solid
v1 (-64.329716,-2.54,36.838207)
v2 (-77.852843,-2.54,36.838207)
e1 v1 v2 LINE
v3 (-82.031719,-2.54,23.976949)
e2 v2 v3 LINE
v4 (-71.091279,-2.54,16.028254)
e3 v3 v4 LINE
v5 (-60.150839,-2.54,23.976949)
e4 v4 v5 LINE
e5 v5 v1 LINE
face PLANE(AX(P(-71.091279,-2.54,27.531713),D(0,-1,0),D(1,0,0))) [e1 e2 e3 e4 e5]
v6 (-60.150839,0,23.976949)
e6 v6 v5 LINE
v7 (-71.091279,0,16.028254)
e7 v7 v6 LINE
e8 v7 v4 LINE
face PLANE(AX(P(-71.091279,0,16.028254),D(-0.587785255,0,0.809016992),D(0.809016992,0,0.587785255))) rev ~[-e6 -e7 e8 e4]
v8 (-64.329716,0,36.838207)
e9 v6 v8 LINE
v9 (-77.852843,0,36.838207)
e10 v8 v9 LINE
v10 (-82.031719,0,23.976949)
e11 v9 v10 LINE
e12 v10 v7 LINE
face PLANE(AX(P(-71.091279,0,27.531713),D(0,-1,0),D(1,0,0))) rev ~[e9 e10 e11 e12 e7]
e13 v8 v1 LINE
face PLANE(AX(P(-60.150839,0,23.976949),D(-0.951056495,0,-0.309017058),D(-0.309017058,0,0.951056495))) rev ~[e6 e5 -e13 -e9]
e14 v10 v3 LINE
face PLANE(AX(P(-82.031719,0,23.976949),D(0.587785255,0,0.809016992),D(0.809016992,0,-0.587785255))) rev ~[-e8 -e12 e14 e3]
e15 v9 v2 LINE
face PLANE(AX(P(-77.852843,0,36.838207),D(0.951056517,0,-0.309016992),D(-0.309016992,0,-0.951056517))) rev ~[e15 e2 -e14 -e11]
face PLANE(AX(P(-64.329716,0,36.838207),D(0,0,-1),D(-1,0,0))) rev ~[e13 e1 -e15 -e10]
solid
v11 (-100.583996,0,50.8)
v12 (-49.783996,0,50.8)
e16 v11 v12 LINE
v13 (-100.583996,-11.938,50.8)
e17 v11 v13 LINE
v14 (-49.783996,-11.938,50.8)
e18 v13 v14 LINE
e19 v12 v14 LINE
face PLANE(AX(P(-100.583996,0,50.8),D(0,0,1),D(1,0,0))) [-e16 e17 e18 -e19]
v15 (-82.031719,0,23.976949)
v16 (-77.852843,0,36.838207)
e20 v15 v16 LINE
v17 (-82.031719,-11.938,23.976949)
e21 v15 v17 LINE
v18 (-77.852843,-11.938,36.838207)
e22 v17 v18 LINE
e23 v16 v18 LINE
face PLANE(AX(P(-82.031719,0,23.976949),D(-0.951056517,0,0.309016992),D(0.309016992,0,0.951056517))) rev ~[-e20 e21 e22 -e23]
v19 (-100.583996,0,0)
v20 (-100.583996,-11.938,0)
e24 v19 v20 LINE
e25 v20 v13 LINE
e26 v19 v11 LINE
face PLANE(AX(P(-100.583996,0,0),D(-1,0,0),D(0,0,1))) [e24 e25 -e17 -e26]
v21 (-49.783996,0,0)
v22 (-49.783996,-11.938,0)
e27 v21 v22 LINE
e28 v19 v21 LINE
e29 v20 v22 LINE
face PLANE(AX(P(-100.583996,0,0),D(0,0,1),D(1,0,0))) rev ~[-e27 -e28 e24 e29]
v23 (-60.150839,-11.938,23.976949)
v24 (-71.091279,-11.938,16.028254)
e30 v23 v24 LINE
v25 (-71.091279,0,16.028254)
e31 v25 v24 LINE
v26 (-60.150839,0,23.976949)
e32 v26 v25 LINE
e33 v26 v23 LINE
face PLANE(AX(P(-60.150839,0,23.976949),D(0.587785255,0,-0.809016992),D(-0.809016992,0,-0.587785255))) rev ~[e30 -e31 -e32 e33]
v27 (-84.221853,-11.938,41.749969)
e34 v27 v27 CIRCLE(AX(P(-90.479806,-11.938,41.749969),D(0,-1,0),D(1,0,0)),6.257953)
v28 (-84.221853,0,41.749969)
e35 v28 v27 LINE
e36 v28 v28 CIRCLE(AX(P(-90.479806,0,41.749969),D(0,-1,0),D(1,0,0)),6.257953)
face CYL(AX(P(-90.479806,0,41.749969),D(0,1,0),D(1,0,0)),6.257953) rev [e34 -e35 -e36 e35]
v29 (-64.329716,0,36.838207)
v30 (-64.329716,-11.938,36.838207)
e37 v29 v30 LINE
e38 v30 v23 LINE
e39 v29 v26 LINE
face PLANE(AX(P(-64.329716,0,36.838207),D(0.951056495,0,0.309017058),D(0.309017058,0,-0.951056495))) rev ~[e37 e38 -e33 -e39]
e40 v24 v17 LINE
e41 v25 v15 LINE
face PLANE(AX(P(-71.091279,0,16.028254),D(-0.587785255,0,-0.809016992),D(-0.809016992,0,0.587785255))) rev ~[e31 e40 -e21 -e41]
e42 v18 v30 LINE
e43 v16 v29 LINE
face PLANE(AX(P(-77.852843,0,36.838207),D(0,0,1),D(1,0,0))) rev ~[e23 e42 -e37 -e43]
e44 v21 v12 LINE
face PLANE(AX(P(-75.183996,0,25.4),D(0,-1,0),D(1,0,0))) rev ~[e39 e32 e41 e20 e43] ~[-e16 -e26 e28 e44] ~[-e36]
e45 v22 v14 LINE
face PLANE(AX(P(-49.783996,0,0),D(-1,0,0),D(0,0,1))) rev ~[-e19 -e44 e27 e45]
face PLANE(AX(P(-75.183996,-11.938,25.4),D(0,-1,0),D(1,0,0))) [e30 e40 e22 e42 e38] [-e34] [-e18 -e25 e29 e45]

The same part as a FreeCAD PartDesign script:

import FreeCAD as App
import Part
import Sketcher
Q = App.Units.Quantity

doc = App.newDocument("Part")
body = doc.addObject("PartDesign::Body", "Body")

sketch1 = doc.addObject("Sketcher::SketchObject", "Sketch")
body.addObject(sketch1)
sketch1.AttachmentSupport = (doc.XZ_Plane, [""])
sketch1.MapMode = "FlatFace"
sketch1.addGeometry([
    Part.LineSegment(App.Vector(-64, 37, 0), App.Vector(-78, 37, 0)),
    Part.LineSegment(App.Vector(-78, 37, 0), App.Vector(-82, 24, 0)),
    Part.LineSegment(App.Vector(-82, 24, 0), App.Vector(-71, 16, 0)),
    Part.LineSegment(App.Vector(-71, 16, 0), App.Vector(-60, 24, 0)),
    Part.LineSegment(App.Vector(-60, 24, 0), App.Vector(-64, 37, 0)),
], False)
sketch1.addConstraint([
    Sketcher.Constraint("Coincident", 0, 2, 1, 1),
    Sketcher.Constraint("Coincident", 1, 2, 2, 1),
    Sketcher.Constraint("Coincident", 2, 2, 3, 1),
    Sketcher.Constraint("Coincident", 3, 2, 4, 1),
    Sketcher.Constraint("Coincident", 4, 2, 0, 1),
    Sketcher.Constraint("Horizontal", 0),
    Sketcher.Constraint("Horizontal", 1, 2, 3, 2),
    Sketcher.Constraint("Equal", 1, 2),
    Sketcher.Constraint("Equal", 2, 3),
    Sketcher.Constraint("Equal", 3, 4),
    Sketcher.Constraint("Angle", 1, Q("-108 deg")),
    Sketcher.Constraint("Angle", 2, Q("-36 deg")),
    Sketcher.Constraint("DistanceX", 0, 2, 0, 1, 13.523127),
    Sketcher.Constraint("DistanceX", 1, 2, -1, 1, 82.031719),
    Sketcher.Constraint("DistanceY", -1, 1, 1, 2, 23.976949),
])
pad1 = doc.addObject("PartDesign::Pad", "Pad")
body.addObject(pad1)
pad1.Profile = sketch1
pad1.Length = Q("0.1 in")
body2 = doc.addObject("PartDesign::Body", "Body001")

sketch2 = doc.addObject("Sketcher::SketchObject", "Sketch001")
body2.addObject(sketch2)
sketch2.AttachmentSupport = (doc.getObject("XZ_Plane001"), [""])
sketch2.MapMode = "FlatFace"
sketch2.addGeometry([
    Part.LineSegment(App.Vector(-101, 51, 0), App.Vector(-101, 0, 0)),
    Part.LineSegment(App.Vector(-101, 0, 0), App.Vector(-50, 0, 0)),
    Part.LineSegment(App.Vector(-50, 0, 0), App.Vector(-50, 51, 0)),
    Part.LineSegment(App.Vector(-50, 51, 0), App.Vector(-101, 51, 0)),
    Part.LineSegment(App.Vector(-71, 16, 0), App.Vector(-82, 24, 0)),
    Part.LineSegment(App.Vector(-82, 24, 0), App.Vector(-78, 37, 0)),
    Part.LineSegment(App.Vector(-78, 37, 0), App.Vector(-64, 37, 0)),
    Part.LineSegment(App.Vector(-64, 37, 0), App.Vector(-60, 24, 0)),
    Part.LineSegment(App.Vector(-60, 24, 0), App.Vector(-71, 16, 0)),
    Part.Circle(App.Vector(-90, 42, 0), App.Vector(0, 0, 1), 6),
], False)
sketch2.addConstraint([
    Sketcher.Constraint("Coincident", 0, 2, 1, 1),
    Sketcher.Constraint("Coincident", 1, 2, 2, 1),
    Sketcher.Constraint("Coincident", 2, 2, 3, 1),
    Sketcher.Constraint("Coincident", 3, 2, 0, 1),
    Sketcher.Constraint("Coincident", 4, 2, 5, 1),
    Sketcher.Constraint("Coincident", 5, 2, 6, 1),
    Sketcher.Constraint("Coincident", 6, 2, 7, 1),
    Sketcher.Constraint("Coincident", 7, 2, 8, 1),
    Sketcher.Constraint("Coincident", 8, 2, 4, 1),
    Sketcher.Constraint("Vertical", 0),
    Sketcher.Constraint("Horizontal", 1),
    Sketcher.Constraint("Vertical", 2),
    Sketcher.Constraint("Horizontal", 3),
    Sketcher.Constraint("Horizontal", 6),
    Sketcher.Constraint("PointOnObject", 0, 2, -1),
    Sketcher.Constraint("Horizontal", 4, 2, 7, 2),
    Sketcher.Constraint("Equal", 3, 0),
    Sketcher.Constraint("Equal", 4, 5),
    Sketcher.Constraint("Equal", 5, 7),
    Sketcher.Constraint("Equal", 7, 8),
    Sketcher.Constraint("DistanceX", 1, 1, 1, 2, Q("2 in")),
    Sketcher.Constraint("Angle", 4, Q("144 deg")),
    Sketcher.Constraint("Angle", 5, Q("72 deg")),
    Sketcher.Constraint("DistanceX", 0, 2, -1, 1, Q("3.9599998 in")),
    Sketcher.Constraint("Diameter", 9, 12.515906),
    Sketcher.Constraint("DistanceX", 6, 1, 6, 2, 13.523127),
    Sketcher.Constraint("DistanceY", -1, 1, 9, 3, 41.749969),
    Sketcher.Constraint("DistanceX", 4, 2, -1, 1, 82.031719),
    Sketcher.Constraint("DistanceY", -1, 1, 4, 2, 23.976949),
    Sketcher.Constraint("DistanceX", 0, 2, 9, 3, 10.10419),
])
pad2 = doc.addObject("PartDesign::Pad", "Pad001")
body2.addObject(pad2)
pad2.Profile = sketch2
pad2.Length = Q("0.47 in")

doc.recompute()
